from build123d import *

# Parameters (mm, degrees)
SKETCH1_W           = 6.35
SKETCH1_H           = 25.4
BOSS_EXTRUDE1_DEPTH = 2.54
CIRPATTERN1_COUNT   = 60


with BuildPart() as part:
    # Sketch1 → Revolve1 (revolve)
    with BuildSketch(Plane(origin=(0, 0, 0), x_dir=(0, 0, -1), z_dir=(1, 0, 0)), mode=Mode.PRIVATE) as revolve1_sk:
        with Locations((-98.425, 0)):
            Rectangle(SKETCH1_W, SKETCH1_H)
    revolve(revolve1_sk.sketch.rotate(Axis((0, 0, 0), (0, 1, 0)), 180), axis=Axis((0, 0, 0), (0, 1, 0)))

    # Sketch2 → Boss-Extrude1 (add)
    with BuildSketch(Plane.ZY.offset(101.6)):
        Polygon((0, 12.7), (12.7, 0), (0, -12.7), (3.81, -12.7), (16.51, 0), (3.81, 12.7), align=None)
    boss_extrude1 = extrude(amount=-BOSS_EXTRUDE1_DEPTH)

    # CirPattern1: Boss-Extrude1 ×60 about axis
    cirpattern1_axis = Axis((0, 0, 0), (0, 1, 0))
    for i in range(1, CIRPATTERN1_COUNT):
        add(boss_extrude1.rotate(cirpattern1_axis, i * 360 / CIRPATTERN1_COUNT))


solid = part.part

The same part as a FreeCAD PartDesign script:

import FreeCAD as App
import Part
import Sketcher

V = App.Vector
Q = App.Units.Quantity


def add_polygon(sketch, points):
    """Adds a closed chain of lines whose ends are joined by coincident constraints."""
    first, n = sketch.GeometryCount, len(points)
    for a, b in zip(points, points[1:] + points[:1]):
        sketch.addGeometry(Part.LineSegment(App.Vector(*a, 0), App.Vector(*b, 0)), False)
    for i in range(n):
        sketch.addConstraint(Sketcher.Constraint("Coincident", first + i, 2, first + (i + 1) % n, 1))

doc = App.newDocument("Part")
body = doc.addObject("PartDesign::Body", "Body")

# Sketch on YZ plane
sketch1 = doc.addObject("Sketcher::SketchObject", "Sketch")
body.addObject(sketch1)
sketch1.AttachmentSupport = (doc.YZ_Plane, [""])
sketch1.MapMode = "FlatFace"
add_polygon(sketch1, [(13, 102), (-13, 102), (-13, 95), (13, 95)])  # lines 0-3
sketch1.addConstraint(Sketcher.Constraint("Horizontal", 0))
sketch1.addConstraint(Sketcher.Constraint("Vertical", 1))
sketch1.addConstraint(Sketcher.Constraint("Horizontal", 2))
sketch1.addConstraint(Sketcher.Constraint("Vertical", 3))
sketch1.addConstraint(Sketcher.Constraint("DistanceX", 0, 2, 0, 1, Q("1 in")))
sketch1.addConstraint(Sketcher.Constraint("DistanceY", -1, 1, 0, 2, Q("4 in")))
sketch1.addConstraint(Sketcher.Constraint("DistanceY", 1, 2, 1, 1, Q("0.25 in")))
sketch1.addConstraint(Sketcher.Constraint("DistanceX", 0, 2, -1, 1, Q("0.5 in")))
revolution = doc.addObject("PartDesign::Revolution", "Revolution")
body.addObject(revolution)
revolution.Profile = sketch1
revolution.ReferenceAxis = (sketch1, ["H_Axis"])
revolution.Angle = 360

# Sketch on YZ plane
sketch2 = doc.addObject("Sketcher::SketchObject", "Sketch001")
body.addObject(sketch2)
sketch2.AttachmentSupport = (doc.YZ_Plane, [""])
sketch2.MapMode = "FlatFace"
sketch2.AttachmentOffset = App.Placement(V(0, 0, -4 * 25.4), App.Rotation())
add_polygon(sketch2, [(12.7, 0), (0, 12.7), (-12.7, 0), (-12.7, 3.8), (0, 16.5), (12.7, 3.8)])  # lines 0-5
sketch2.addConstraint(Sketcher.Constraint("Vertical", 2))
sketch2.addConstraint(Sketcher.Constraint("Vertical", 5))
sketch2.addConstraint(Sketcher.Constraint("Symmetric", 1, 2, 5, 2, -1, 1))
sketch2.addConstraint(Sketcher.Constraint("PointOnObject", 0, 2, -2))
sketch2.addConstraint(Sketcher.Constraint("PointOnObject", 1, 2, -1))
sketch2.addConstraint(Sketcher.Constraint("PointOnObject", 3, 2, -2))
sketch2.addConstraint(Sketcher.Constraint("Perpendicular", 0, 1))
sketch2.addConstraint(Sketcher.Constraint("Parallel", 1, 3))
sketch2.addConstraint(Sketcher.Constraint("Perpendicular", 3, 4))
sketch2.addConstraint(Sketcher.Constraint("DistanceX", 2, 2, 4, 2, Q("1 in")))
sketch2.addConstraint(Sketcher.Constraint("DistanceY", 2, 1, 2, 2, Q("0.15 in")))
pad1 = doc.addObject("PartDesign::Pad", "Pad")
body.addObject(pad1)
pad1.Profile = sketch2
pad1.Length = Q("0.1 in")
doc.recompute()

polarpattern = doc.addObject("PartDesign::PolarPattern", "PolarPattern")
body.addObject(polarpattern)
polarpattern.Originals = [pad1]
polarpattern.Axis = (doc.Y_Axis, [""])
polarpattern.Angle = 360
polarpattern.Occurrences = 60
body.Tip = polarpattern

doc.recompute()
